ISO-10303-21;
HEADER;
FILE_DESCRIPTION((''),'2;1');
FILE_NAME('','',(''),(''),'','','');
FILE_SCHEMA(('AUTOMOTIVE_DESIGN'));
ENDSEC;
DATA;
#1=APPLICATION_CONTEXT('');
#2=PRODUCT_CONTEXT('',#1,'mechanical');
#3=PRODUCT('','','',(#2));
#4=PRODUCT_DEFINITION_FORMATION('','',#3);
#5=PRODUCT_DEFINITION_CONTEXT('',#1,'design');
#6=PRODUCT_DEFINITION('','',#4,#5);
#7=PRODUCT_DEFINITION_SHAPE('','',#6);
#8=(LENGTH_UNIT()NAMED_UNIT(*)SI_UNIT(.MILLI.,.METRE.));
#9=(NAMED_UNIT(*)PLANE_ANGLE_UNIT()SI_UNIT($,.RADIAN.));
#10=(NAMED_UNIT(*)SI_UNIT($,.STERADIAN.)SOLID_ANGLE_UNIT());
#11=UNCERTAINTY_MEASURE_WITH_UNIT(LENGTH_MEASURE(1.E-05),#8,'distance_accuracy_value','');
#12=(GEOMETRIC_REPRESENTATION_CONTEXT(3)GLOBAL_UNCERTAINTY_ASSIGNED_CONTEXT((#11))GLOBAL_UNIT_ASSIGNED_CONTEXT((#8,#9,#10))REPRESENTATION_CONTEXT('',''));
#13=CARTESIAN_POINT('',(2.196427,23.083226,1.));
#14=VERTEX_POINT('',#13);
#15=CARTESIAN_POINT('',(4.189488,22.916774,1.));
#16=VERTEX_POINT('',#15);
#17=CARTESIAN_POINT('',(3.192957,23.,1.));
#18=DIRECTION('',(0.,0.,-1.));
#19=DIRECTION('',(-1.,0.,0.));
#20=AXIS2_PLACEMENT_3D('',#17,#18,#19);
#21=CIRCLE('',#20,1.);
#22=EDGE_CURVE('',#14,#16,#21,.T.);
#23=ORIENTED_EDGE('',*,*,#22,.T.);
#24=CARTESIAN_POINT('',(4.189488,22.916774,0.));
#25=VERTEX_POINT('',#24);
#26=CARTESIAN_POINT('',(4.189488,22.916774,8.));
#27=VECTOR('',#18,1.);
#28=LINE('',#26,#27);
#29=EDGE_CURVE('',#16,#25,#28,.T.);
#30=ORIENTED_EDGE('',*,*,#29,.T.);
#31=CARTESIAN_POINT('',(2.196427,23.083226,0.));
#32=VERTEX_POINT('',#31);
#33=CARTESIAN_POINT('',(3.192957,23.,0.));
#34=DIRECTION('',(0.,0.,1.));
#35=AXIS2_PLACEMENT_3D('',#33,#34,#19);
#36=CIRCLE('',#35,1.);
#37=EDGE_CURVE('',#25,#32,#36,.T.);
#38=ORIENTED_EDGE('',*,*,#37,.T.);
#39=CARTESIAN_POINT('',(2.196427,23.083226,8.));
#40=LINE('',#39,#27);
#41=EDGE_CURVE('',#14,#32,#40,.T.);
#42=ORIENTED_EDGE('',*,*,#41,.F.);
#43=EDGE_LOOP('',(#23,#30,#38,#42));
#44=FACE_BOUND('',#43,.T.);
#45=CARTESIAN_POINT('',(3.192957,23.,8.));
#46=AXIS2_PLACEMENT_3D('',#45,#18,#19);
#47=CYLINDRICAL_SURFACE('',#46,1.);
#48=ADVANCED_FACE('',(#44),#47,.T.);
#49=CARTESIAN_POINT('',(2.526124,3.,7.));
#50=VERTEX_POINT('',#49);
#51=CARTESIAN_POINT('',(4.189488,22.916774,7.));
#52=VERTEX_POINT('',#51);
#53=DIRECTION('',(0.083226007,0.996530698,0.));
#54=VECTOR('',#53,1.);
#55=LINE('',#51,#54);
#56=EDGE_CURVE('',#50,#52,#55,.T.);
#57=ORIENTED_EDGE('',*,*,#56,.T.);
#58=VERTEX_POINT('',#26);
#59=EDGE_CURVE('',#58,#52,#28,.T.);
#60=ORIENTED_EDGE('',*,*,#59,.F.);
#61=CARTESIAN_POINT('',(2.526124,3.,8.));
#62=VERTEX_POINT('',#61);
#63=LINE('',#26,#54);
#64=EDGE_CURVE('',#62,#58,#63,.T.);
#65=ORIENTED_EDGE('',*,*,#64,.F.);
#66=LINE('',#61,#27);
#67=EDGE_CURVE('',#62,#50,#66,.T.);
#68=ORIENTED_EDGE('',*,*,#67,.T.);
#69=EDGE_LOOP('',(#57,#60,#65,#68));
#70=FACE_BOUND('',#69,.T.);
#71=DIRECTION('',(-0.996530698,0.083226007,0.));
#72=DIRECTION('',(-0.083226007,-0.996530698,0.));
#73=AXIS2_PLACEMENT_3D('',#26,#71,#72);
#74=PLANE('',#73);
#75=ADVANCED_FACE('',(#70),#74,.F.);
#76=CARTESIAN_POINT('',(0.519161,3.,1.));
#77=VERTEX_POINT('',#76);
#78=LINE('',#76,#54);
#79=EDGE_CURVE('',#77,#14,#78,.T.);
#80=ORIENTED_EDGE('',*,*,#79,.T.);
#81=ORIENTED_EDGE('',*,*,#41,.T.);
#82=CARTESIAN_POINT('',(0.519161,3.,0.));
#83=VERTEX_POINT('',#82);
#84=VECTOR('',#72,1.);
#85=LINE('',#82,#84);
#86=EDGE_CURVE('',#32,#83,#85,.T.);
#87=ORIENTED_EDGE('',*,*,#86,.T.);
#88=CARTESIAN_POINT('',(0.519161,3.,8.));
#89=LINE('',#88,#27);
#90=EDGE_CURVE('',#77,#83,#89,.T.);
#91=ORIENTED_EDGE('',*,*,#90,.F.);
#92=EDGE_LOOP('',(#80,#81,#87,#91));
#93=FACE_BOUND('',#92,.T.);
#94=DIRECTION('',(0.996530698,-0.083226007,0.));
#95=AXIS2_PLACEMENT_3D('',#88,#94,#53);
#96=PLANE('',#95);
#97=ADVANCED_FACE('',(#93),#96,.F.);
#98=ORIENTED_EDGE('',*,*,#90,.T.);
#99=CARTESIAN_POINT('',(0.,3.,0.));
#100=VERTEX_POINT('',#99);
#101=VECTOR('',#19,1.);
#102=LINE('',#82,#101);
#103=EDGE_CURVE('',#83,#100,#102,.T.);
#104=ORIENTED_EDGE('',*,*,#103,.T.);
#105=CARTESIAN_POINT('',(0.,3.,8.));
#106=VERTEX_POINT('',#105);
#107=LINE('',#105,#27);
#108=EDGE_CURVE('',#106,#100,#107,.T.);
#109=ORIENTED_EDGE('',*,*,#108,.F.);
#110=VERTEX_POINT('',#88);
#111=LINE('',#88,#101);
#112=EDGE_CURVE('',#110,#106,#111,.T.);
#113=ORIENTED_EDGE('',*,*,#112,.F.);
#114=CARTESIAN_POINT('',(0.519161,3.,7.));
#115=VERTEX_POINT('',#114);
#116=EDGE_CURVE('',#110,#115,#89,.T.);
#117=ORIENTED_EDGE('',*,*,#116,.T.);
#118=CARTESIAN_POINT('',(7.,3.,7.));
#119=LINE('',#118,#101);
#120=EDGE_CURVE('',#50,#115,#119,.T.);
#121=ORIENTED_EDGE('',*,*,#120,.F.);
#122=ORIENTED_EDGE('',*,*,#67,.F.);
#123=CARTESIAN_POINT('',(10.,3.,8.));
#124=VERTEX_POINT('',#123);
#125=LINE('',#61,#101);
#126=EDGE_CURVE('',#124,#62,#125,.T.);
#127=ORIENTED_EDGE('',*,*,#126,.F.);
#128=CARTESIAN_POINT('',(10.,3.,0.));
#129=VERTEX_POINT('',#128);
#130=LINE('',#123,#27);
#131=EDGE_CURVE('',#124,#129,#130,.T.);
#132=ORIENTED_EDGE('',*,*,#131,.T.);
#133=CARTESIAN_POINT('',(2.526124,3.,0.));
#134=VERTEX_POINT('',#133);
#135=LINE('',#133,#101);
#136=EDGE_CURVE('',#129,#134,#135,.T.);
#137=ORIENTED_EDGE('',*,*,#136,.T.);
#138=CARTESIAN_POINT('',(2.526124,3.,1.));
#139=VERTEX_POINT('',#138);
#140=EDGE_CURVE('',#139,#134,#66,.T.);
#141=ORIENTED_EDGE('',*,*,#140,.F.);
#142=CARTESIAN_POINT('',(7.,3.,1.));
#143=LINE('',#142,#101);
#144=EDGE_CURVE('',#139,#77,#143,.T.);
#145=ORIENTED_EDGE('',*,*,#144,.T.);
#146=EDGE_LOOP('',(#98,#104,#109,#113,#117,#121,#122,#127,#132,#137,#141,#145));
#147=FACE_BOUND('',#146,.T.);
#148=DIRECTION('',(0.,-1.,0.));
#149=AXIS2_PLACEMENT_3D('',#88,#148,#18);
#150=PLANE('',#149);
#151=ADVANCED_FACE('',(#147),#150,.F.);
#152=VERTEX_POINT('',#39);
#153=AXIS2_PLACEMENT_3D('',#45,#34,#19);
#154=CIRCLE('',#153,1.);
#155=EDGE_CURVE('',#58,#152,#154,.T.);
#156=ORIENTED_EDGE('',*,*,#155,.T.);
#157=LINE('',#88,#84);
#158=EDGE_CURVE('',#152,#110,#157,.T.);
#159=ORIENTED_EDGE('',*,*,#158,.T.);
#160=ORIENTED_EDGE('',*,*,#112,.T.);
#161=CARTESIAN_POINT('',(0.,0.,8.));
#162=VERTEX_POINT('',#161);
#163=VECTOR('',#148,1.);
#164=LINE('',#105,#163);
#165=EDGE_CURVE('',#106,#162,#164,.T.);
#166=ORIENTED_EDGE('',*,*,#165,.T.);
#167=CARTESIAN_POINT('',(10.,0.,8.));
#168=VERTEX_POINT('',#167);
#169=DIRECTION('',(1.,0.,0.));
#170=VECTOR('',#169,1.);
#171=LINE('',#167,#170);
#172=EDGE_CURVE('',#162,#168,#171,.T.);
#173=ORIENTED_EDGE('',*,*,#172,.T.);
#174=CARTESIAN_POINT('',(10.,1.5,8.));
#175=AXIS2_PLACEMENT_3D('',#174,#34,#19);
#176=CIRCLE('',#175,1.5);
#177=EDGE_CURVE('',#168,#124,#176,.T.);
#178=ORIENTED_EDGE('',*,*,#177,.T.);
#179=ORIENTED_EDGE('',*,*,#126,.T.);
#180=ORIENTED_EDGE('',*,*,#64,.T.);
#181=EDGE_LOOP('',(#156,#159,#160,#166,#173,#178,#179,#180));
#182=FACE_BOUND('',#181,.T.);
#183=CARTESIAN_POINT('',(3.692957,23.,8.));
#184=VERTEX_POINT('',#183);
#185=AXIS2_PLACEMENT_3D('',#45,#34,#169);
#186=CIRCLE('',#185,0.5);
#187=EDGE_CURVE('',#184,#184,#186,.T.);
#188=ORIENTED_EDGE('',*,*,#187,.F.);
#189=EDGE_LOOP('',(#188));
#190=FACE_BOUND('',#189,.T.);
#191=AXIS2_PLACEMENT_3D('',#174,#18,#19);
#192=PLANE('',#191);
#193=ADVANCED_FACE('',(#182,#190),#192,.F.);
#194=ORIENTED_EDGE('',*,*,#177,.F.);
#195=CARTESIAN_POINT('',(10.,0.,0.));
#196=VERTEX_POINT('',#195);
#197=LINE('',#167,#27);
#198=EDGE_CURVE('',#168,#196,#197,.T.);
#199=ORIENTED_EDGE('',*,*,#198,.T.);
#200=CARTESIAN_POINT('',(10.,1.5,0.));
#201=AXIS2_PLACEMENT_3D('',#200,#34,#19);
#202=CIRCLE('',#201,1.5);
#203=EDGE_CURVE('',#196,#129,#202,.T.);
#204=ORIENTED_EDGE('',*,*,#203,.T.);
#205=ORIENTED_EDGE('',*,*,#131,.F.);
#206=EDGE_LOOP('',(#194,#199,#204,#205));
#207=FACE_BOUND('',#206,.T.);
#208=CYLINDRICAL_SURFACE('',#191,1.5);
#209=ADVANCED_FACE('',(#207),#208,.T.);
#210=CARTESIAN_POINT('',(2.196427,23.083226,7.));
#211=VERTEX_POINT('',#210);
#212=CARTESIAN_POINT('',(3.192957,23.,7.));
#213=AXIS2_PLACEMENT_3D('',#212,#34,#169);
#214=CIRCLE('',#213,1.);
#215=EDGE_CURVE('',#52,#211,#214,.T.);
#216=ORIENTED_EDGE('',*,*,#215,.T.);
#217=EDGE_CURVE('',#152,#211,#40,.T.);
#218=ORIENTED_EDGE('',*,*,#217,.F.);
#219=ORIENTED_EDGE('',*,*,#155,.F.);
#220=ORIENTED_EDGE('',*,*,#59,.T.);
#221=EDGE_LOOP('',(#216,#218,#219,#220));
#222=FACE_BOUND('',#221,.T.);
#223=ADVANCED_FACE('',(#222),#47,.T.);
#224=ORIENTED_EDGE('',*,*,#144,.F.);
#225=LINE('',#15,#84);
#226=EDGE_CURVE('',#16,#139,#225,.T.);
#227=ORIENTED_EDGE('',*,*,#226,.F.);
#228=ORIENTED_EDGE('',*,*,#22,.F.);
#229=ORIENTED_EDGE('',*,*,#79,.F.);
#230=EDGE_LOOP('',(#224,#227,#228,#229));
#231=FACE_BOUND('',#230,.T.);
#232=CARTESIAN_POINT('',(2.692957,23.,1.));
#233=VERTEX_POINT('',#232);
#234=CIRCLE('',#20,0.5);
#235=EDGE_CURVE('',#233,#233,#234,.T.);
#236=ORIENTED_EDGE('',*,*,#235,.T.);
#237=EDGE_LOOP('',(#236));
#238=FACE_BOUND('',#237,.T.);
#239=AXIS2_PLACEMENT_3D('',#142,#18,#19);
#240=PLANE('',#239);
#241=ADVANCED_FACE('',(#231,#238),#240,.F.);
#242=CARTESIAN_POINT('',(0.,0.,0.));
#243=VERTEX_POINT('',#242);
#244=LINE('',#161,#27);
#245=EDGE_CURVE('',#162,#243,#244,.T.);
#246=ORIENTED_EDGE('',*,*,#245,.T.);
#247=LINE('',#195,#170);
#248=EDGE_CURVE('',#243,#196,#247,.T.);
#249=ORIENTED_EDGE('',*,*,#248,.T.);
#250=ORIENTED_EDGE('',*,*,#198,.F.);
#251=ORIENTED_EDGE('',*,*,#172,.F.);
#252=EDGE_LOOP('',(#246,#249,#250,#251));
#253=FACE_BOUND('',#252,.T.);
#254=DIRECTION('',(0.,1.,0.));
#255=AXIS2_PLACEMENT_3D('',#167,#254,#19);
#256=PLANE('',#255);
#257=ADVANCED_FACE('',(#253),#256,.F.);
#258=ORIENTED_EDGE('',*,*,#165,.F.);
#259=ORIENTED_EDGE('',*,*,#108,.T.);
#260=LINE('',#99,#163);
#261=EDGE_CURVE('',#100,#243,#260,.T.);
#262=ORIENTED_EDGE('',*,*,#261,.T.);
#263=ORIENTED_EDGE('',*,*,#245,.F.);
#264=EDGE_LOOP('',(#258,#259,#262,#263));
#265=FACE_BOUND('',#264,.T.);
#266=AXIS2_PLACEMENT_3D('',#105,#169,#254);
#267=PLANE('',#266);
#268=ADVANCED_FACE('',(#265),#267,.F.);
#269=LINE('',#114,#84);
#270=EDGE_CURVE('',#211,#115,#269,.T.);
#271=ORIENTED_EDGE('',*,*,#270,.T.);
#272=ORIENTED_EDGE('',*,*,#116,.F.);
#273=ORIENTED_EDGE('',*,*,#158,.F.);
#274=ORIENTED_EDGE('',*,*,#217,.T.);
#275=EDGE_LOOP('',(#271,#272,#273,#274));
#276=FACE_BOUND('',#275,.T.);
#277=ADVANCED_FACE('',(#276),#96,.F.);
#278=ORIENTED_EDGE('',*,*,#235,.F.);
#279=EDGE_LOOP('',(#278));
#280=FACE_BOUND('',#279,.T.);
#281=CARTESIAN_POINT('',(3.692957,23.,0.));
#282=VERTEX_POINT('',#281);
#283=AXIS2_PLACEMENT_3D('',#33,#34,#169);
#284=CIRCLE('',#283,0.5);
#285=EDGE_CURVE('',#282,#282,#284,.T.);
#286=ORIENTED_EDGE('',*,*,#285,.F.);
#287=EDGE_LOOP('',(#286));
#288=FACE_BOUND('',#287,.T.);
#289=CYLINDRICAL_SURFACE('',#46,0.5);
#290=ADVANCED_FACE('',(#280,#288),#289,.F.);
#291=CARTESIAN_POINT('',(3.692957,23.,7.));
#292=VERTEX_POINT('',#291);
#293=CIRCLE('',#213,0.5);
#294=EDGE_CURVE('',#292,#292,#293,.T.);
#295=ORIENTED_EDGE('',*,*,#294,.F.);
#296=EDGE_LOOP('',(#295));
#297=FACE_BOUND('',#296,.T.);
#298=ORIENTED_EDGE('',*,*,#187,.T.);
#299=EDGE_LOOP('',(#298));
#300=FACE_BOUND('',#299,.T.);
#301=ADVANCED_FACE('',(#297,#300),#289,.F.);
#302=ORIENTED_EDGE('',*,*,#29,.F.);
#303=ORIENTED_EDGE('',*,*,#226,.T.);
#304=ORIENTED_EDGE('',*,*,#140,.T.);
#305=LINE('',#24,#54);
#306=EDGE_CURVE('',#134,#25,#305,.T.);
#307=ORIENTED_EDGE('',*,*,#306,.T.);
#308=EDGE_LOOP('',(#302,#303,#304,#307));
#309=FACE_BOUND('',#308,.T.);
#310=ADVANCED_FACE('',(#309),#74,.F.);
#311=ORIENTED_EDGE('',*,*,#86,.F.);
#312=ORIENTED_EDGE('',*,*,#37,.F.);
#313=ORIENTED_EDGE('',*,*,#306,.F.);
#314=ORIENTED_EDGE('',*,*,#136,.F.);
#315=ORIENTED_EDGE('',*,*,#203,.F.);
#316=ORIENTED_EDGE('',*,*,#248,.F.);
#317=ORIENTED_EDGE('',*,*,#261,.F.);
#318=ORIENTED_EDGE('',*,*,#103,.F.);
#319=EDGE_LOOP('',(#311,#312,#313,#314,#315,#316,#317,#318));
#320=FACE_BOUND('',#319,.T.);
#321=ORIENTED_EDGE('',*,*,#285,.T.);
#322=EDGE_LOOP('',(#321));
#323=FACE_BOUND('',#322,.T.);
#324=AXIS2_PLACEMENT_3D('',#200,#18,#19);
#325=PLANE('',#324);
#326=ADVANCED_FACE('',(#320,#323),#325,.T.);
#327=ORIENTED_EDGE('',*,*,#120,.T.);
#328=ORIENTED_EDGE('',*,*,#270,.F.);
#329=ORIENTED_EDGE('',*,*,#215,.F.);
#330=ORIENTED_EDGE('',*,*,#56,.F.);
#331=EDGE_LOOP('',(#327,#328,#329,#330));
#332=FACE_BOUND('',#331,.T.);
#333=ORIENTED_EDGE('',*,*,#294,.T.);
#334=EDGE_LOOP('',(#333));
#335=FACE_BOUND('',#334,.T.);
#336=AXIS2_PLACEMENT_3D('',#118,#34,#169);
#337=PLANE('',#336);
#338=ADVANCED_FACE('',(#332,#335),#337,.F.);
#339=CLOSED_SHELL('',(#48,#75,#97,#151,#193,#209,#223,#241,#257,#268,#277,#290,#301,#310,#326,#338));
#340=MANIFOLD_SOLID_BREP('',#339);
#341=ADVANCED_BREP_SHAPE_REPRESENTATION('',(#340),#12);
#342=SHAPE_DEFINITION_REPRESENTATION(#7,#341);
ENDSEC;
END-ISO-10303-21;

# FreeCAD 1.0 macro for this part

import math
import FreeCAD as App
import Part
import Sketcher
from FreeCAD import Vector


def add_polygon(sketch, points):
    """Adds a closed chain of lines whose ends are joined by coincident constraints."""
    first, n = sketch.GeometryCount, len(points)
    for a, b in zip(points, points[1:] + points[:1]):
        sketch.addGeometry(Part.LineSegment(App.Vector(*a, 0), App.Vector(*b, 0)), False)
    for i in range(n):
        sketch.addConstraint(Sketcher.Constraint("Coincident", first + i, 2, first + (i + 1) % n, 1))

doc = App.newDocument("Part")
body = doc.addObject("PartDesign::Body", "Body")

# Sketch on XY plane
sketch1 = body.newObject("Sketcher::SketchObject", "Sketch")
sketch1.AttachmentSupport = (doc.getObject("XY_Plane"), [""])
sketch1.MapMode = "FlatFace"
sketch1.addGeometry([
    Part.LineSegment(Vector(2.2, 23.1, 0), Vector(0.5, 3, 0)),  # 0
    Part.LineSegment(Vector(0.5, 3, 0), Vector(0, 3, 0)),  # 1
    Part.LineSegment(Vector(0, 3, 0), Vector(0, 0, 0)),  # 2
    Part.LineSegment(Vector(0, 0, 0), Vector(10, 0, 0)),  # 3
    Part.ArcOfCircle(Part.Circle(Vector(10, 1.5, 0), Vector(0, 0, 1), 1.5), math.radians(-90), math.radians(90)),  # 4
    Part.LineSegment(Vector(10, 3, 0), Vector(2.5, 3, 0)),  # 5
    Part.LineSegment(Vector(2.5, 3, 0), Vector(4.2, 22.9, 0)),  # 6
    Part.ArcOfCircle(Part.Circle(Vector(3.2, 23, 0), Vector(0, 0, 1), 1), math.radians(-5), math.radians(175)),  # 7
    Part.Circle(Vector(3.2, 23, 0), Vector(0, 0, 1), 0.5),  # 8
], False)
sketch1.addConstraint([
    Sketcher.Constraint("Coincident", 0, 2, 1, 1),
    Sketcher.Constraint("Coincident", 1, 2, 2, 1),
    Sketcher.Constraint("Coincident", 2, 2, 3, 1),
    Sketcher.Constraint("Tangent", 3, 2, 4, 1),
    Sketcher.Constraint("Tangent", 4, 2, 5, 1),
    Sketcher.Constraint("Coincident", 5, 2, 6, 1),
    Sketcher.Constraint("Tangent", 6, 2, 7, 1),
    Sketcher.Constraint("Tangent", 7, 2, 0, 1),
    Sketcher.Constraint("Horizontal", 1),
    Sketcher.Constraint("Vertical", 2),
    Sketcher.Constraint("Horizontal", 3),
    Sketcher.Constraint("Horizontal", 5),
    Sketcher.Constraint("Coincident", 2, 2, -1, 1),
    Sketcher.Constraint("Coincident", 8, 3, 7, 3),
    Sketcher.Constraint("Parallel", 0, 6),
    Sketcher.Constraint("Horizontal", 1, 2, 4, 2),
    Sketcher.Constraint("Diameter", 8, 1.0),
    Sketcher.Constraint("Radius", 7, 1.0),
    Sketcher.Constraint("Radius", 4, 1.5),
    Sketcher.Constraint("DistanceX", 3, 1, 3, 2, 10.0),
    Sketcher.Constraint("DistanceY", -1, 1, 7, 3, 23.0),
    Sketcher.Constraint("DistanceX", 1, 2, 1, 1, 0.519161),
    Sketcher.Constraint("Distance", 6, 19.986112),
])
pad1 = body.newObject("PartDesign::Pad", "Pad")
pad1.Profile = sketch1
pad1.Length = 8

# Sketch on YZ plane
sketch2 = body.newObject("Sketcher::SketchObject", "Sketch001")
sketch2.AttachmentSupport = (doc.getObject("YZ_Plane"), [""])
sketch2.MapMode = "FlatFace"
add_polygon(sketch2, [(24, 1), (3, 1), (3, 7), (24, 7)])  # lines 0-3
sketch2.addConstraint([
    Sketcher.Constraint("Horizontal", 0),
    Sketcher.Constraint("Vertical", 1),
    Sketcher.Constraint("Horizontal", 2),
    Sketcher.Constraint("Vertical", 3),
    Sketcher.Constraint("DistanceX", 0, 2, 0, 1, 21.0),
    Sketcher.Constraint("DistanceY", 1, 1, 1, 2, 6.0),
    Sketcher.Constraint("DistanceX", -1, 1, 0, 2, 3.0),
    Sketcher.Constraint("DistanceY", -1, 1, 0, 2, 1.0),
])
pocket1 = body.newObject("PartDesign::Pocket", "Pocket")
pocket1.Profile = sketch2
pocket1.Length = 7
pocket1.Reversed = True

doc.recompute()
